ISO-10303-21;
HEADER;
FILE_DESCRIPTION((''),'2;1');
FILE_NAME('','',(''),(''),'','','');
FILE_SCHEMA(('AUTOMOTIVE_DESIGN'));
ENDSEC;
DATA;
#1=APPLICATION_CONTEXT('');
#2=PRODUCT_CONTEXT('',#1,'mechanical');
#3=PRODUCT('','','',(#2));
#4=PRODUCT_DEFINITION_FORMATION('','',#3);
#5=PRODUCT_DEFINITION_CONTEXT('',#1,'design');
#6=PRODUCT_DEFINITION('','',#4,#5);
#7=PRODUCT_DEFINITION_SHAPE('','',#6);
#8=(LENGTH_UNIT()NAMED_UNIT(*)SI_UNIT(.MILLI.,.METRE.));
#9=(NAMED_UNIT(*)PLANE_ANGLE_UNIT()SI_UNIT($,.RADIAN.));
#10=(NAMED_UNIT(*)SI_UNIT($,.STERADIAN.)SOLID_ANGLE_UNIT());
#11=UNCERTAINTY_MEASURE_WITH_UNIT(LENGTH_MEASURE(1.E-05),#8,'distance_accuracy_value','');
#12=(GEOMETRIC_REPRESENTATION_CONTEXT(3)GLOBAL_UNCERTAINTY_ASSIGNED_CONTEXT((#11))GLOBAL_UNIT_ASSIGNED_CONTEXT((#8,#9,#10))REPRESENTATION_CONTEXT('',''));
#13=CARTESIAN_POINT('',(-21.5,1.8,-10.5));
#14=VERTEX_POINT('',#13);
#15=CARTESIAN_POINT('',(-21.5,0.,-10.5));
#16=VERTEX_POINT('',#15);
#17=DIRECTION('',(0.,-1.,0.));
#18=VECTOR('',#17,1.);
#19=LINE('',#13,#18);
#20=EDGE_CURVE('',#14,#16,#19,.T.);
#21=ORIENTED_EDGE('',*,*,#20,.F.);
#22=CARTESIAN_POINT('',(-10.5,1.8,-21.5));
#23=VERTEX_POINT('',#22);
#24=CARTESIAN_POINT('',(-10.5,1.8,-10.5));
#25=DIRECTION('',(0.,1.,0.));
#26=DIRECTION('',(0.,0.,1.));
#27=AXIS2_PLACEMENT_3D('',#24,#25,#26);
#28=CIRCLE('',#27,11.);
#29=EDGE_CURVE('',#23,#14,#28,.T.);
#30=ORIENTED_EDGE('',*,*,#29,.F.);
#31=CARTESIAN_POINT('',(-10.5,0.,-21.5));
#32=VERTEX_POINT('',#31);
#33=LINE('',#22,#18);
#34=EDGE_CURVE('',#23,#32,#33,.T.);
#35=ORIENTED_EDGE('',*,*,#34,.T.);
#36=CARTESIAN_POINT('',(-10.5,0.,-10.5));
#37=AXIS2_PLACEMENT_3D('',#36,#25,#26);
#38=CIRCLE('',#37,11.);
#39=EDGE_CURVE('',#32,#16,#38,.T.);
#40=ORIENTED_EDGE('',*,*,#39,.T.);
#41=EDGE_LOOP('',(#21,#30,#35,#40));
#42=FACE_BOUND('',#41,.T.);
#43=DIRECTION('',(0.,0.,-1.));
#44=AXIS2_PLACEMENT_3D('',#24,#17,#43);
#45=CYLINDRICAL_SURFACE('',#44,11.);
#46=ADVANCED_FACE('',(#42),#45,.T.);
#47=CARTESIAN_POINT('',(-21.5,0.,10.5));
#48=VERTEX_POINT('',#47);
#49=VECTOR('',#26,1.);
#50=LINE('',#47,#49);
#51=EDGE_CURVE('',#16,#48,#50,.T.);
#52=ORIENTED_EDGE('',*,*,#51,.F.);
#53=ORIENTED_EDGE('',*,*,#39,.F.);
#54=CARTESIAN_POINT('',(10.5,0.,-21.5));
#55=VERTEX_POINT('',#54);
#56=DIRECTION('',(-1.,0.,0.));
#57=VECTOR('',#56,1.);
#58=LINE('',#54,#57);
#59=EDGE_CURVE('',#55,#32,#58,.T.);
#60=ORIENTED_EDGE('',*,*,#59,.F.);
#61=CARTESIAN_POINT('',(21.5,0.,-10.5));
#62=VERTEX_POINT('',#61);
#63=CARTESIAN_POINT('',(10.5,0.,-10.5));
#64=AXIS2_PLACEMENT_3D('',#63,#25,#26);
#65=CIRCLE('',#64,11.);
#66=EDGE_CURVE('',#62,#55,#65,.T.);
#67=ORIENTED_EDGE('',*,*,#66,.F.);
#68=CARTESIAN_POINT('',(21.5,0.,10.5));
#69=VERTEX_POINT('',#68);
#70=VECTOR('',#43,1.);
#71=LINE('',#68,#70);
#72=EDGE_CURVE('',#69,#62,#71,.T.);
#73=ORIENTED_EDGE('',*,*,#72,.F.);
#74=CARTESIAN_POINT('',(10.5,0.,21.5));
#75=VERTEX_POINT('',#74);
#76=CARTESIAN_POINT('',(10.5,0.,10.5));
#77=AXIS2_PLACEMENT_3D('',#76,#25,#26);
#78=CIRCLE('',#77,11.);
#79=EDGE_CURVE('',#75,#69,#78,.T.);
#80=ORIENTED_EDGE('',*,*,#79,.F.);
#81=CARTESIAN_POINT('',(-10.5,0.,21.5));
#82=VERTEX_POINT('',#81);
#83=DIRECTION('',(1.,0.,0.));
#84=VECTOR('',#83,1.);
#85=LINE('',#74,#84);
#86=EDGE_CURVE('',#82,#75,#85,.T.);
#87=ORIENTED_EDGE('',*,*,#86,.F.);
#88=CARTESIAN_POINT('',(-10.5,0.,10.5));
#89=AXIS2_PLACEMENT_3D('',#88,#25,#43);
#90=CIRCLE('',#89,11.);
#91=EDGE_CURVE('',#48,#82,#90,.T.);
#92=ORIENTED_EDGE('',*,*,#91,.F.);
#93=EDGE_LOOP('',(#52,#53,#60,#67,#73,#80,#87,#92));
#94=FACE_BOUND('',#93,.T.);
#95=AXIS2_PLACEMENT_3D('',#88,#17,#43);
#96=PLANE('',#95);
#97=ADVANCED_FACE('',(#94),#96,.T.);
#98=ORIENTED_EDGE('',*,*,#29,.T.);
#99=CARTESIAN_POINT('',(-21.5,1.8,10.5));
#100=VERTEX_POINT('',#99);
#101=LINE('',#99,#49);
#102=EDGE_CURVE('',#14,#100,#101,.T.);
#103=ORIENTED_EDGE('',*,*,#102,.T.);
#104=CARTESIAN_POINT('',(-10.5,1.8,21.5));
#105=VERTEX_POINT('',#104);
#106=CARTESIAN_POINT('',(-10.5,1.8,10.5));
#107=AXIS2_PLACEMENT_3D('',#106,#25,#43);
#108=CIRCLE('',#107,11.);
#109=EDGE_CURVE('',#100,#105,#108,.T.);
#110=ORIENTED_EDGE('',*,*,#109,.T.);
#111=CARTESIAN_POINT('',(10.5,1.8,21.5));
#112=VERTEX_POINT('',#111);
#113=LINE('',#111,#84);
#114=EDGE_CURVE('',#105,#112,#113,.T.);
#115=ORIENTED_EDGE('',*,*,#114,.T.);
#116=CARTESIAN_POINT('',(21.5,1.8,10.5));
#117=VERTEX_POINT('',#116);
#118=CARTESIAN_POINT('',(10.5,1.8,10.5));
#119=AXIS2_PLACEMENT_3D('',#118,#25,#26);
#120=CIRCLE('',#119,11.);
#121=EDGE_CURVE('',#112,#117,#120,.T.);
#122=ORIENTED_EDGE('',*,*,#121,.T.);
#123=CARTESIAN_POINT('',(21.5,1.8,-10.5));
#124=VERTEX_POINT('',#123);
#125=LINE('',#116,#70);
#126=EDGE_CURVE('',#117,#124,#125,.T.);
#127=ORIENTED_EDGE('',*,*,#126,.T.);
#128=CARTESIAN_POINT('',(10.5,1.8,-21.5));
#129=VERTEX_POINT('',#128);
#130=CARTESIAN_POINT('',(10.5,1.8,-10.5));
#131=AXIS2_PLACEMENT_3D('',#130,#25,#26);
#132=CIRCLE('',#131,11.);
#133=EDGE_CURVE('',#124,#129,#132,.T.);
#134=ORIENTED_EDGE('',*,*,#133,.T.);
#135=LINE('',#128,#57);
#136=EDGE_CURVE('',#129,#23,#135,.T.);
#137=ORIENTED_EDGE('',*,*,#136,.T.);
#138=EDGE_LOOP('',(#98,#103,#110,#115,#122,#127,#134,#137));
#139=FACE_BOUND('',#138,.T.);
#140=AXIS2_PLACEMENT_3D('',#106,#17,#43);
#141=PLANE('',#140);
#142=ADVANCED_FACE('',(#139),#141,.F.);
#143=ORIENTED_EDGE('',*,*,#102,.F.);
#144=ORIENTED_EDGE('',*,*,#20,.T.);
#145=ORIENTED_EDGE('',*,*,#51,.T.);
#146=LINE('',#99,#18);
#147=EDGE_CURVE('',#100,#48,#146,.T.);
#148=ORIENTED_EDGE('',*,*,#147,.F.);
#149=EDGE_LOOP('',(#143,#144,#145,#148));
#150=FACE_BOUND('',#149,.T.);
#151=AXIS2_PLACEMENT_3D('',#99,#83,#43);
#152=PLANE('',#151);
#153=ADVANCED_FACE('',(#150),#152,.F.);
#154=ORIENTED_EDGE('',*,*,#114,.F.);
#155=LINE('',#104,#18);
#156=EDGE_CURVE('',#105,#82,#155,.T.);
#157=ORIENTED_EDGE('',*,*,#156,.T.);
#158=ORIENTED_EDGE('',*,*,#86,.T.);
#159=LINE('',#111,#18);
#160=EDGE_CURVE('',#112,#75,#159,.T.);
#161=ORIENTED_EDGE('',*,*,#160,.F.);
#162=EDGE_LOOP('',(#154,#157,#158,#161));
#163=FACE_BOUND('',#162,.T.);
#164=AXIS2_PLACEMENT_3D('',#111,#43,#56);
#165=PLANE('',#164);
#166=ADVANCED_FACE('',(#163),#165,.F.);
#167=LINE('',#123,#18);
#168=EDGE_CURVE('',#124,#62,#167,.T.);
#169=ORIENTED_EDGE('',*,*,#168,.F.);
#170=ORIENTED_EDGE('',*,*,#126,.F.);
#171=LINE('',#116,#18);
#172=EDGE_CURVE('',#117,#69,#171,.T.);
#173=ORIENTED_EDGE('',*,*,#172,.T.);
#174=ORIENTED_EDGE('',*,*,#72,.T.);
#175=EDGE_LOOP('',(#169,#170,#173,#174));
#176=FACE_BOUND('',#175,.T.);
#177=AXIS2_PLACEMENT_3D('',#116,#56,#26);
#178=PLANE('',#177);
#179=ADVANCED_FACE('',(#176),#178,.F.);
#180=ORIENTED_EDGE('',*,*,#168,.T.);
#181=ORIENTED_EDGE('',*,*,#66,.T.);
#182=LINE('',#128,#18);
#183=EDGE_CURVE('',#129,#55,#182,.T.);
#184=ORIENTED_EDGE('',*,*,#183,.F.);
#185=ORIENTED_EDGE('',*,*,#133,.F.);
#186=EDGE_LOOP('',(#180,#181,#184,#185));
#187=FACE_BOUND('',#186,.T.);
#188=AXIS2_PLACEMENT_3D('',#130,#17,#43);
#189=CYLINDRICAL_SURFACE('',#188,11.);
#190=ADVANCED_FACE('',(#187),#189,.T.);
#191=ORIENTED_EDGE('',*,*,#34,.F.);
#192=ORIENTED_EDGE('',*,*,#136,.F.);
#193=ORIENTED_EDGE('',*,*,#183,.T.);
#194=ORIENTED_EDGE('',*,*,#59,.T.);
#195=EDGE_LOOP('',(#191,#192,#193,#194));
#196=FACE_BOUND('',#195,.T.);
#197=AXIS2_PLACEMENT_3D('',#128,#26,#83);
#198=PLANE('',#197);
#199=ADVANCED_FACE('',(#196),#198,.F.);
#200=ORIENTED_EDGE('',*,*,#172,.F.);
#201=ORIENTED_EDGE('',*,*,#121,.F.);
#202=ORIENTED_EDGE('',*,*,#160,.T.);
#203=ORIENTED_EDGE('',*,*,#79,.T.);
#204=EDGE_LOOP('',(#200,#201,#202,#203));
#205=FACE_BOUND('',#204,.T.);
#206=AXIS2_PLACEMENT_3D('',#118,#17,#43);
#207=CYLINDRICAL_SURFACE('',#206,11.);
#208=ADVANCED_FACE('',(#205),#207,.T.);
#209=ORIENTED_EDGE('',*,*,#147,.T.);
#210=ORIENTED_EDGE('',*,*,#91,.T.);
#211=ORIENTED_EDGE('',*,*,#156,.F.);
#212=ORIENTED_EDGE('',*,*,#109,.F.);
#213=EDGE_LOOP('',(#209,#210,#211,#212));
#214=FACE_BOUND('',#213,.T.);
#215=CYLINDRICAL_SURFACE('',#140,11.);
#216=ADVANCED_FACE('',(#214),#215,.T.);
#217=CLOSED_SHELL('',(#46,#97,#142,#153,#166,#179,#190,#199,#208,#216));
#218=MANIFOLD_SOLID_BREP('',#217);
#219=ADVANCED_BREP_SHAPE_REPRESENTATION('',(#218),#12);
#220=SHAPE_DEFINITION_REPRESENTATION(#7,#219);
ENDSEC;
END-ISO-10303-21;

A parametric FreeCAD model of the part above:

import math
import FreeCAD as App
import Part
import Sketcher
Q = App.Units.Quantity

doc = App.newDocument("Part")
body = doc.addObject("PartDesign::Body", "Body")

# Sketch on XZ plane
sketch1 = body.newObject("Sketcher::SketchObject", "Sketch")
sketch1.AttachmentSupport = (doc.getObject("XZ_Plane"), [""])
sketch1.MapMode = "FlatFace"
sketch1.addGeometry([
    Part.LineSegment(App.Vector(-10, 22, 0), App.Vector(10, 22, 0)),  # 0
    Part.ArcOfCircle(Part.Circle(App.Vector(10, 10, 0), App.Vector(0, 0, 1), 11), math.radians(0), math.radians(90)),  # 1
    Part.LineSegment(App.Vector(22, 10, 0), App.Vector(22, -10, 0)),  # 2
    Part.ArcOfCircle(Part.Circle(App.Vector(10, -10, 0), App.Vector(0, 0, 1), 11), math.radians(-90), math.radians(0)),  # 3
    Part.LineSegment(App.Vector(10, -22, 0), App.Vector(-10, -22, 0)),  # 4
    Part.ArcOfCircle(Part.Circle(App.Vector(-10, -10, 0), App.Vector(0, 0, 1), 11), math.radians(180), math.radians(270)),  # 5
    Part.LineSegment(App.Vector(-22, -10, 0), App.Vector(-22, 10, 0)),  # 6
    Part.ArcOfCircle(Part.Circle(App.Vector(-10, 10, 0), App.Vector(0, 0, 1), 11), math.radians(90), math.radians(180)),  # 7
], False)
sketch1.addConstraint([
    Sketcher.Constraint("Tangent", 0, 2, 1, 2),
    Sketcher.Constraint("Tangent", 1, 1, 2, 1),
    Sketcher.Constraint("Tangent", 2, 2, 3, 2),
    Sketcher.Constraint("Tangent", 3, 1, 4, 1),
    Sketcher.Constraint("Tangent", 4, 2, 5, 2),
    Sketcher.Constraint("Tangent", 5, 1, 6, 1),
    Sketcher.Constraint("Tangent", 6, 2, 7, 2),
    Sketcher.Constraint("Tangent", 7, 1, 0, 1),
    Sketcher.Constraint("Horizontal", 0),
    Sketcher.Constraint("Vertical", 2),
    Sketcher.Constraint("Horizontal", 4),
    Sketcher.Constraint("Vertical", 6),
    Sketcher.Constraint("Equal", 1, 3),
    Sketcher.Constraint("Equal", 3, 5),
    Sketcher.Constraint("Equal", 5, 7),
    Sketcher.Constraint("Symmetric", 1, 3, 5, 3, -1, 1),
    Sketcher.Constraint("Equal", 4, 2),
    Sketcher.Constraint("Radius", 1, Q("11 mm")),
    Sketcher.Constraint("DistanceX", 0, 1, 0, 2, Q("21 mm")),
])
pad1 = body.newObject("PartDesign::Pad", "Pad")
pad1.Profile = sketch1
pad1.Length = 1.8
pad1.Reversed = True

doc.recompute()
